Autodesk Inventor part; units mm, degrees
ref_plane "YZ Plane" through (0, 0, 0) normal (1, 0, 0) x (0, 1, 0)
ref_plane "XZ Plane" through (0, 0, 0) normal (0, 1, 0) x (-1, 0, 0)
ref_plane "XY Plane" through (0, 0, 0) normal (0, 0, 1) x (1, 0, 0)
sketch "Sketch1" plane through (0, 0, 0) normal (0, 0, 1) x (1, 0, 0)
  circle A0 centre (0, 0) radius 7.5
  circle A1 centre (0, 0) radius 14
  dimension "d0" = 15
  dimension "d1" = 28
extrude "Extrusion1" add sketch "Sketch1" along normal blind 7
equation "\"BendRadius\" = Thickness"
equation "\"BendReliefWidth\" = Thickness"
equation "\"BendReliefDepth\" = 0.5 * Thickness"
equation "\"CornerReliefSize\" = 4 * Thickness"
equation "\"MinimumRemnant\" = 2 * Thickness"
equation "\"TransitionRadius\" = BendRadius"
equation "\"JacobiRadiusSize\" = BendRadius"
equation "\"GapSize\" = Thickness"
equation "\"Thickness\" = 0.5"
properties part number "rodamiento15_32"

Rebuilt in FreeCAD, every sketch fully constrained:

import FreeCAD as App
import Part
import Sketcher

doc = App.newDocument("Part")
body = doc.addObject("PartDesign::Body", "Body")

# Sketch on XY plane
sketch1 = body.newObject("Sketcher::SketchObject", "Sketch")
sketch1.AttachmentSupport = (doc.getObject("XY_Plane"), [""])
sketch1.MapMode = "FlatFace"
sketch1.addGeometry(Part.Circle(App.Vector(0, 0, 0), App.Vector(0, 0, 1), 14), False)
sketch1.addGeometry(Part.Circle(App.Vector(0, 0, 0), App.Vector(0, 0, 1), 7.5), False)
sketch1.addConstraint(Sketcher.Constraint("Coincident", 0, 3, -1, 1))
sketch1.addConstraint(Sketcher.Constraint("Coincident", 1, 3, -1, 1))
sketch1.addConstraint(Sketcher.Constraint("Diameter", 0, 28.0))
sketch1.addConstraint(Sketcher.Constraint("Diameter", 1, 15.0))
pad1 = body.newObject("PartDesign::Pad", "Pad")
pad1.Profile = sketch1
pad1.Length = 7

doc.recompute()
